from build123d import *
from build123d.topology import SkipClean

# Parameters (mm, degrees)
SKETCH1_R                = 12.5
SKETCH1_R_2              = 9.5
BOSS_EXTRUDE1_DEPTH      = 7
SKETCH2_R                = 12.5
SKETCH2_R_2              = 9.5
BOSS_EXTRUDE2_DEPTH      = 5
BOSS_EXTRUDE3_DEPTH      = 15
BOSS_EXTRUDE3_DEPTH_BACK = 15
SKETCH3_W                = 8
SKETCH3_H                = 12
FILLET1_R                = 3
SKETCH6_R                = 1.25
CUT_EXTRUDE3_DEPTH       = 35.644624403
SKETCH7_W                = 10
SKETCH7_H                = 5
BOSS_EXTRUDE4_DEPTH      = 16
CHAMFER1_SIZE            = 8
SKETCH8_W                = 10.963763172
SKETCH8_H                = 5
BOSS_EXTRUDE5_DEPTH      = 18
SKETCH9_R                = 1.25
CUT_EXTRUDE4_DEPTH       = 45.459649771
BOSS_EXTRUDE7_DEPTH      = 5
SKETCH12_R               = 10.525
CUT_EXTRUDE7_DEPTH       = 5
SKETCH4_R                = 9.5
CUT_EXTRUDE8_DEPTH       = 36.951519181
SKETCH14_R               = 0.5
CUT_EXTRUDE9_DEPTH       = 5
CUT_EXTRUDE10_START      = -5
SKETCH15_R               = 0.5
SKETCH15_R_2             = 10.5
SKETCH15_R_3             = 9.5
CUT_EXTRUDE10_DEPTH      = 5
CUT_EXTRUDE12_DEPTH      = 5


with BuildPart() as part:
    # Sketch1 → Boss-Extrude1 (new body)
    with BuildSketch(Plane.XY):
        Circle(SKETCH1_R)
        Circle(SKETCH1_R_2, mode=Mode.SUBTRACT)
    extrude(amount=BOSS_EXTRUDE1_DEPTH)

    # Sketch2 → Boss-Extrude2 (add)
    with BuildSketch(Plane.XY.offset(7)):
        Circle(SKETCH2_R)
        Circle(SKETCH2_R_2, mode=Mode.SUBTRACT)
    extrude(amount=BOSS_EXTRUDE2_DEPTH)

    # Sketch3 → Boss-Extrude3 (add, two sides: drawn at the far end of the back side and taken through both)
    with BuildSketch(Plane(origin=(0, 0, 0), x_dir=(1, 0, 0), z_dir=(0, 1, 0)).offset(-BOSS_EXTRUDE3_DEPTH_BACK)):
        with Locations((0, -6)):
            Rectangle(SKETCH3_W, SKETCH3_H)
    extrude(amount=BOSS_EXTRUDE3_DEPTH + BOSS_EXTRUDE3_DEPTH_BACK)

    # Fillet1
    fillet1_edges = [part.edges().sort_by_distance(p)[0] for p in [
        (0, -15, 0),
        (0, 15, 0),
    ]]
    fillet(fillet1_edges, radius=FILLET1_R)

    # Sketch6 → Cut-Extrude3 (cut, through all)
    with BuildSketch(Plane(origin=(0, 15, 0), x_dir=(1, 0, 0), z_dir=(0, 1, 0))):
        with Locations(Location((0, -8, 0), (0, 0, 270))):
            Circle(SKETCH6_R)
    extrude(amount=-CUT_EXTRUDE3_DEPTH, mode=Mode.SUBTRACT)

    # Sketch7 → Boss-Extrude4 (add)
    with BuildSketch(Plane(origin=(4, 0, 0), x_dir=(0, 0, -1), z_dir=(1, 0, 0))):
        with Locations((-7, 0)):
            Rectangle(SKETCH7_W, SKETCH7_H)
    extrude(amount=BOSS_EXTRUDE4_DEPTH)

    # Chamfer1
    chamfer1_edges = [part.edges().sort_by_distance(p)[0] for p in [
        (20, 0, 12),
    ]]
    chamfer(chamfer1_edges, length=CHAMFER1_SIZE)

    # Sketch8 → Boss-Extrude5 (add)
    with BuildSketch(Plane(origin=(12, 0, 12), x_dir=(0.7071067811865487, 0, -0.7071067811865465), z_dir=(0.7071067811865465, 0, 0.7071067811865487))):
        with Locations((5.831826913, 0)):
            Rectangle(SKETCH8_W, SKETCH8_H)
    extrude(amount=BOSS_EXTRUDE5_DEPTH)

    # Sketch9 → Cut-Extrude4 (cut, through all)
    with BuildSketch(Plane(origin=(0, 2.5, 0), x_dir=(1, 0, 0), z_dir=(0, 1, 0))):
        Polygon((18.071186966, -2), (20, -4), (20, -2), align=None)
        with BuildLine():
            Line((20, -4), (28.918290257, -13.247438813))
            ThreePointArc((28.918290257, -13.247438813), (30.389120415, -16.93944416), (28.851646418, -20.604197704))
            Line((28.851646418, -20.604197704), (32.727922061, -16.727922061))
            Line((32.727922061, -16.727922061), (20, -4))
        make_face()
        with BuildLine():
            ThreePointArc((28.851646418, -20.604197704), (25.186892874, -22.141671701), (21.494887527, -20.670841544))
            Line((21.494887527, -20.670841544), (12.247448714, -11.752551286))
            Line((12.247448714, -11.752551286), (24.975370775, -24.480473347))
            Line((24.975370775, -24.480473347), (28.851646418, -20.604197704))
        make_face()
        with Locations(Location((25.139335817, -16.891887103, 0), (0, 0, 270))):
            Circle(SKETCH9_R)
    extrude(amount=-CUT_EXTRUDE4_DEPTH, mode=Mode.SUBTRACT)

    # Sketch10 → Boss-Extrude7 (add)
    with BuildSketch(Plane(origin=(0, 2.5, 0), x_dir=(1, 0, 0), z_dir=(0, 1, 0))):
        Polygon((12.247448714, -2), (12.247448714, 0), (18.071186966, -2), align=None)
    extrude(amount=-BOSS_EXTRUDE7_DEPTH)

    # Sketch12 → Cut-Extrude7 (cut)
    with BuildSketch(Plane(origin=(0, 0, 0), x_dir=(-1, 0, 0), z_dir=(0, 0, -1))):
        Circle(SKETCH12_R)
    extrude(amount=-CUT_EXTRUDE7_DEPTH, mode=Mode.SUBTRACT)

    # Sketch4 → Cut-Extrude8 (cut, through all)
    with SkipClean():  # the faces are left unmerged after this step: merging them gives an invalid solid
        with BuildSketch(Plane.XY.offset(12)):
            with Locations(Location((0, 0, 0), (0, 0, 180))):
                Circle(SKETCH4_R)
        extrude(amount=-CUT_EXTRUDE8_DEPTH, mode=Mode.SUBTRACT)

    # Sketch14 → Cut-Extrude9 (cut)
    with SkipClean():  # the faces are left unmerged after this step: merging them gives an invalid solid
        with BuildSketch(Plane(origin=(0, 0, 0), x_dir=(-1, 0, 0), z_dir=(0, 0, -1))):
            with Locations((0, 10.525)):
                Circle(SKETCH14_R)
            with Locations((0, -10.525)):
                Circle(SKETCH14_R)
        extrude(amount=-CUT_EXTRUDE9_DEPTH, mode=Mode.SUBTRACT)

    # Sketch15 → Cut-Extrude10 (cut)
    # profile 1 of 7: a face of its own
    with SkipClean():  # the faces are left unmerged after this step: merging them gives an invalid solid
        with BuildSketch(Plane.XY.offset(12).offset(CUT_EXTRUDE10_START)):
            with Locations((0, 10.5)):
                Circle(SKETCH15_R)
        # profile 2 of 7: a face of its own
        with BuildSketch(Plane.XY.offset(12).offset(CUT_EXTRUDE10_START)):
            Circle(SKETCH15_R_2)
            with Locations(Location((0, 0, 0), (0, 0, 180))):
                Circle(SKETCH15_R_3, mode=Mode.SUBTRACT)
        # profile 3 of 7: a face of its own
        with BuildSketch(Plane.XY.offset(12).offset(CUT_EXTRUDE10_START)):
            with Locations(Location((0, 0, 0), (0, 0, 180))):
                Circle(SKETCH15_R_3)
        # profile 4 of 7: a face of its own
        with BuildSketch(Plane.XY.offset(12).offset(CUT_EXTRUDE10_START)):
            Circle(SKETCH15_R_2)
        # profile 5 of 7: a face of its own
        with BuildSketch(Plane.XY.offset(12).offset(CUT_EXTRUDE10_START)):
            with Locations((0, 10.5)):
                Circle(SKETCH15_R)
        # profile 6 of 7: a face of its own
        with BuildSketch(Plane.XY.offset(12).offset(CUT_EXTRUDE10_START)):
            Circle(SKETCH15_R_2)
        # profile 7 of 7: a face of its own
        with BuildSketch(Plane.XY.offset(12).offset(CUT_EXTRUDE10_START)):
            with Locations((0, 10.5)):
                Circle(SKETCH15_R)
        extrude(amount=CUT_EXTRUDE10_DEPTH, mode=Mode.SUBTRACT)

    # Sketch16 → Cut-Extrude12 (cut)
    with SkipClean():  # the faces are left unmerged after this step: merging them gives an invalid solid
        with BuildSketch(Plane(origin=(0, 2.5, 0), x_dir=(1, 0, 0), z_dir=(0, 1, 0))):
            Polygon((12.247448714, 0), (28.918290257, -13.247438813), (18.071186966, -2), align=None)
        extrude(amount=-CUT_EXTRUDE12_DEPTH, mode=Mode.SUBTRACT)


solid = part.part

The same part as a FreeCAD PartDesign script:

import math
import FreeCAD as App
import Part
import Sketcher

V = App.Vector
Q = App.Units.Quantity


def edges_at(feature, points):
    """Names of the edges that pass closest to the given points."""
    edges = feature.Shape.Edges
    near = lambda p: min(range(len(edges)), key=lambda i: edges[i].distToShape(Part.Vertex(*p))[0])
    return sorted({f"Edge{near(p) + 1}" for p in points})


def add_polygon(sketch, points):
    """Adds a closed chain of lines whose ends are joined by coincident constraints."""
    first, n = sketch.GeometryCount, len(points)
    for a, b in zip(points, points[1:] + points[:1]):
        sketch.addGeometry(Part.LineSegment(App.Vector(*a, 0), App.Vector(*b, 0)), False)
    for i in range(n):
        sketch.addConstraint(Sketcher.Constraint("Coincident", first + i, 2, first + (i + 1) % n, 1))

doc = App.newDocument("Part")
body = doc.addObject("PartDesign::Body", "Body")
body.AllowCompound = True

# Sketch on XY plane
sketch1 = doc.addObject("Sketcher::SketchObject", "Sketch")
body.addObject(sketch1)
sketch1.AttachmentSupport = (doc.XY_Plane, [""])
sketch1.MapMode = "FlatFace"
sketch1.addGeometry([
    Part.Circle(V(0, 0, 0), V(0, 0, 1), 12),
    Part.Circle(V(0, 0, 0), V(0, 0, 1), 10),
], False)
sketch1.addConstraint([
    Sketcher.Constraint("Coincident", 0, 3, -1, 1),
    Sketcher.Constraint("Coincident", 1, 3, -1, 1),
    Sketcher.Constraint("Diameter", 0, 25.0),
    Sketcher.Constraint("Diameter", 1, 19.0),
])
pad1 = doc.addObject("PartDesign::Pad", "Pad")
body.addObject(pad1)
pad1.Profile = sketch1
pad1.Length = 7

# Sketch on XY plane
sketch2 = doc.addObject("Sketcher::SketchObject", "Sketch001")
body.addObject(sketch2)
sketch2.AttachmentSupport = (doc.XY_Plane, [""])
sketch2.MapMode = "FlatFace"
sketch2.AttachmentOffset = App.Placement(V(0, 0, 7), App.Rotation())
sketch2.addGeometry([
    Part.Circle(V(0, 0, 0), V(0, 0, 1), 12),
    Part.Circle(V(0, 0, 0), V(0, 0, 1), 10),
], False)
sketch2.addConstraint([
    Sketcher.Constraint("Coincident", 0, 3, -1, 1),
    Sketcher.Constraint("Coincident", 1, 3, -1, 1),
    Sketcher.Constraint("Diameter", 0, 25.0),
    Sketcher.Constraint("Diameter", 1, 19.0),
])
pad2 = doc.addObject("PartDesign::Pad", "Pad001")
body.addObject(pad2)
pad2.Profile = sketch2
pad2.Length = 5

# Sketch on XZ plane
sketch3 = doc.addObject("Sketcher::SketchObject", "Sketch002")
body.addObject(sketch3)
sketch3.AttachmentSupport = (doc.XZ_Plane, [""])
sketch3.MapMode = "FlatFace"
add_polygon(sketch3, [(-4, 0), (-4, 12), (4, 12), (4, 0)])  # lines 0-3
sketch3.addConstraint([
    Sketcher.Constraint("Vertical", 0),
    Sketcher.Constraint("Horizontal", 1),
    Sketcher.Constraint("Vertical", 2),
    Sketcher.Constraint("Horizontal", 3),
    Sketcher.Constraint("Symmetric", 2, 2, 3, 2, -1, 1),
    Sketcher.Constraint("DistanceX", 1, 1, 1, 2, 8.0),
    Sketcher.Constraint("DistanceY", 0, 1, 0, 2, 12.0),
])
pad3 = doc.addObject("PartDesign::Pad", "Pad002")
body.addObject(pad3)
pad3.Profile = sketch3
pad3.Type = "TwoLengths"
pad3.Length = 15
pad3.Length2 = 15
pad3.Reversed = True
doc.recompute()

fillet = doc.addObject("PartDesign::Fillet", "Fillet")
body.addObject(fillet)
fillet.Base = (pad3, edges_at(pad3, [(0, -15, 0), (0, 15, 0)]))
fillet.Radius = 3

# Sketch on XZ plane
sketch4 = doc.addObject("Sketcher::SketchObject", "Sketch003")
body.addObject(sketch4)
sketch4.AttachmentSupport = (doc.XZ_Plane, [""])
sketch4.MapMode = "FlatFace"
sketch4.AttachmentOffset = App.Placement(V(0, 0, -15), App.Rotation())
sketch4.addGeometry(Part.Circle(V(0, 8, 0), V(0, 0, 1), 1.2), False)
sketch4.addConstraint([
    Sketcher.Constraint("PointOnObject", 0, 3, -2),
    Sketcher.Constraint("Diameter", 0, 2.5),
    Sketcher.Constraint("DistanceY", -1, 1, 0, 3, 8.0),
])
pocket1 = doc.addObject("PartDesign::Pocket", "Pocket")
body.addObject(pocket1)
pocket1.Profile = sketch4
pocket1.Type = "ThroughAll"
pocket1.Reversed = True

# Sketch on YZ plane
sketch5 = doc.addObject("Sketcher::SketchObject", "Sketch004")
body.addObject(sketch5)
sketch5.AttachmentSupport = (doc.YZ_Plane, [""])
sketch5.MapMode = "FlatFace"
sketch5.AttachmentOffset = App.Placement(V(0, 0, 4), App.Rotation())
add_polygon(sketch5, [(2, 12), (-2, 12), (-2, 2), (2, 2)])  # lines 0-3
sketch5.addConstraint([
    Sketcher.Constraint("Horizontal", 0),
    Sketcher.Constraint("Vertical", 1),
    Sketcher.Constraint("Horizontal", 2),
    Sketcher.Constraint("Vertical", 3),
    Sketcher.Constraint("DistanceX", 0, 2, 0, 1, 5.0),
    Sketcher.Constraint("DistanceY", 1, 2, 1, 1, 10.0),
    Sketcher.Constraint("DistanceY", -1, 1, 0, 2, 12.0),
    Sketcher.Constraint("DistanceX", 0, 2, -1, 1, 2.5),
])
pad4 = doc.addObject("PartDesign::Pad", "Pad003")
body.addObject(pad4)
pad4.Profile = sketch5
pad4.Length = 16
doc.recompute()

chamfer = doc.addObject("PartDesign::Chamfer", "Chamfer")
body.addObject(chamfer)
chamfer.Base = (pad4, edges_at(pad4, [(20, 0, 12)]))
chamfer.Size = 8

# Sketch on an angled plane
sketch6 = doc.addObject("Sketcher::SketchObject", "Sketch005")
body.addObject(sketch6)
sketch6.Placement = App.Placement(V(12, 0, 12), App.Rotation(V(0.707106781, 0, -0.707106781), V(0, 0.999999999, 0), V(0.707106781, 0, 0.707106781), "ZXY"))
add_polygon(sketch6, [(0.3, 2.5), (0.3, -2.5), (11.3, -2.5), (11.3, 2.5)])  # lines 0-3
sketch6.addConstraint([
    Sketcher.Constraint("Vertical", 0),
    Sketcher.Constraint("Horizontal", 1),
    Sketcher.Constraint("Vertical", 2),
    Sketcher.Constraint("Horizontal", 3),
    Sketcher.Constraint("DistanceY", 0, 2, 0, 1, 5.0),
    Sketcher.Constraint("DistanceY", 0, 2, -1, 1, 2.5),
    Sketcher.Constraint("DistanceX", 1, 1, 1, 2, 10.963763),
    Sketcher.Constraint("DistanceX", -1, 1, 1, 2, 11.313708),
])
pad5 = doc.addObject("PartDesign::Pad", "Pad004")
body.addObject(pad5)
pad5.Profile = sketch6
pad5.Length = 18

# Sketch on XZ plane
sketch7 = doc.addObject("Sketcher::SketchObject", "Sketch006")
body.addObject(sketch7)
sketch7.AttachmentSupport = (doc.XZ_Plane, [""])
sketch7.MapMode = "FlatFace"
sketch7.AttachmentOffset = App.Placement(V(0, 0, -2.5), App.Rotation())
add_polygon(sketch7, [(18.1, 2), (20, 4), (20, 2)])  # lines 0-2
sketch7.addGeometry(Part.LineSegment(V(20, 4, 0), V(28.9, 13.2, 0)), False)  # 3
sketch7.addGeometry(Part.ArcOfCircle(Part.Circle(V(25.1, 16.9, 0), V(0, 0, 1), 5.2), math.radians(-44), math.radians(45)), False)  # 4
sketch7.addGeometry(Part.LineSegment(V(28.9, 20.6, 0), V(32.7, 16.7, 0)), False)  # 5
sketch7.addGeometry(Part.LineSegment(V(32.7, 16.7, 0), V(20, 4, 0)), False)  # 6
sketch7.addGeometry(Part.ArcOfCircle(Part.Circle(V(25.1, 16.9, 0), V(0, 0, 1), 5.3), math.radians(45), math.radians(134)), False)  # 7
sketch7.addGeometry(Part.LineSegment(V(21.5, 20.7, 0), V(12.2, 11.8, 0)), False)  # 8
sketch7.addGeometry(Part.LineSegment(V(12.2, 11.8, 0), V(25, 24.5, 0)), False)  # 9
sketch7.addGeometry(Part.LineSegment(V(25, 24.5, 0), V(28.9, 20.6, 0)), False)  # 10
sketch7.addGeometry(Part.Circle(V(25.1, 16.9, 0), V(0, 0, 1), 1.2), False)  # 11
sketch7.addConstraint([
    Sketcher.Constraint("Tangent", 3, 2, 4, 1),
    Sketcher.Constraint("Tangent", 4, 2, 5, 1),
    Sketcher.Constraint("Coincident", 5, 2, 6, 1),
    Sketcher.Constraint("Coincident", 6, 2, 3, 1),
    Sketcher.Constraint("Tangent", 7, 2, 8, 1),
    Sketcher.Constraint("Coincident", 8, 2, 9, 1),
    Sketcher.Constraint("Coincident", 9, 2, 10, 1),
    Sketcher.Constraint("Tangent", 10, 2, 7, 1),
    Sketcher.Constraint("Vertical", 1),
    Sketcher.Constraint("Horizontal", 2),
    Sketcher.Constraint("Coincident", 7, 3, 4, 3),
    Sketcher.Constraint("Coincident", 11, 3, 4, 3),
    Sketcher.Constraint("Coincident", 6, 2, 0, 2),
    Sketcher.Constraint("Coincident", 10, 2, 4, 2),
    Sketcher.Constraint("Parallel", 0, 3),
    Sketcher.Constraint("Perpendicular", 5, 6),
    Sketcher.Constraint("Parallel", 6, 9),
    Sketcher.Constraint("Equal", 3, 8),
    Sketcher.Constraint("Equal", 6, 9),
    Sketcher.Constraint("Diameter", 11, 2.5),
    Sketcher.Constraint("DistanceY", 1, 2, 1, 1, 2.0),
    Sketcher.Constraint("Angle", 5, Q("-45 deg")),
    Sketcher.Constraint("Radius", 4, 5.25),
    Sketcher.Constraint("Distance", 6, 18.0),
    Sketcher.Constraint("DistanceX", -1, 1, 0, 2, 20.0),
    Sketcher.Constraint("DistanceY", -1, 1, 0, 2, 4.0),
    Sketcher.Constraint("Distance", 3, 12.847219),
])
pocket2 = doc.addObject("PartDesign::Pocket", "Pocket001")
body.addObject(pocket2)
pocket2.Profile = sketch7
pocket2.Type = "ThroughAll"
pocket2.Reversed = True

# Sketch on XZ plane
sketch8 = doc.addObject("Sketcher::SketchObject", "Sketch007")
body.addObject(sketch8)
sketch8.AttachmentSupport = (doc.XZ_Plane, [""])
sketch8.MapMode = "FlatFace"
sketch8.AttachmentOffset = App.Placement(V(0, 0, -2.5), App.Rotation())
add_polygon(sketch8, [(12.2, 0), (12.2, 2), (18.1, 2)])  # lines 0-2
sketch8.addConstraint([
    Sketcher.Constraint("Vertical", 0),
    Sketcher.Constraint("Horizontal", 1),
    Sketcher.Constraint("PointOnObject", 2, 2, -1),
    Sketcher.Constraint("DistanceY", 0, 1, 0, 2, 2.0),
    Sketcher.Constraint("DistanceX", 1, 1, 1, 2, 5.823738),
    Sketcher.Constraint("DistanceX", -1, 1, 0, 2, 12.247449),
])
pad6 = doc.addObject("PartDesign::Pad", "Pad005")
body.addObject(pad6)
pad6.Profile = sketch8
pad6.Length = 5

# Sketch on XY plane
sketch9 = doc.addObject("Sketcher::SketchObject", "Sketch008")
body.addObject(sketch9)
sketch9.AttachmentSupport = (doc.XY_Plane, [""])
sketch9.MapMode = "FlatFace"
sketch9.addGeometry(Part.Circle(V(0, 0, 0), V(0, 0, 1), 11), False)
sketch9.addConstraint([
    Sketcher.Constraint("Coincident", 0, 3, -1, 1),
    Sketcher.Constraint("Diameter", 0, 21.05),
])
pocket3 = doc.addObject("PartDesign::Pocket", "Pocket002")
body.addObject(pocket3)
pocket3.Profile = sketch9
pocket3.Length = 5
pocket3.Reversed = True

# Sketch on XY plane
sketch10 = doc.addObject("Sketcher::SketchObject", "Sketch009")
body.addObject(sketch10)
sketch10.AttachmentSupport = (doc.XY_Plane, [""])
sketch10.MapMode = "FlatFace"
sketch10.AttachmentOffset = App.Placement(V(0, 0, 12), App.Rotation())
sketch10.addGeometry(Part.Circle(V(0, 0, 0), V(0, 0, 1), 10), False)
sketch10.addConstraint([
    Sketcher.Constraint("Coincident", 0, 3, -1, 1),
    Sketcher.Constraint("Diameter", 0, 19.0),
])
pocket4 = doc.addObject("PartDesign::Pocket", "Pocket003")
body.addObject(pocket4)
pocket4.Profile = sketch10
pocket4.Type = "ThroughAll"

# Sketch on XY plane
sketch11 = doc.addObject("Sketcher::SketchObject", "Sketch010")
body.addObject(sketch11)
sketch11.AttachmentSupport = (doc.XY_Plane, [""])
sketch11.MapMode = "FlatFace"
sketch11.addGeometry([
    Part.Circle(V(0, 10.5, 0), V(0, 0, 1), 0.5),
    Part.Circle(V(0, -10.5, 0), V(0, 0, 1), 0.5),
], False)
sketch11.addConstraint([
    Sketcher.Constraint("Equal", 0, 1),
    Sketcher.Constraint("Symmetric", 0, 3, 1, 3, -1, 1),
    Sketcher.Constraint("PointOnObject", 0, 3, -2),
    Sketcher.Constraint("Diameter", 0, 1.0),
    Sketcher.Constraint("DistanceY", 1, 3, 0, 3, 21.05),
])
pocket5 = doc.addObject("PartDesign::Pocket", "Pocket004")
body.addObject(pocket5)
pocket5.Profile = sketch11
pocket5.Length = 5
pocket5.Reversed = True

# Sketch on XY plane
sketch12 = doc.addObject("Sketcher::SketchObject", "Sketch011")
body.addObject(sketch12)
sketch12.AttachmentSupport = (doc.XY_Plane, [""])
sketch12.MapMode = "FlatFace"
sketch12.AttachmentOffset = App.Placement(V(0, 0, 7), App.Rotation())
sketch12.addGeometry([
    Part.ArcOfCircle(Part.Circle(V(0, 10.5, 0), V(0, 0, 1), 0.5), math.radians(-1), math.radians(181)),
    Part.ArcOfCircle(Part.Circle(V(0, 0, 0), V(0, 0, 1), 10.5), math.radians(93), math.radians(447)),
], False)
sketch12.addConstraint([
    Sketcher.Constraint("Coincident", 0, 1, 1, 2),
    Sketcher.Constraint("Coincident", 1, 1, 0, 2),
    Sketcher.Constraint("Coincident", 1, 3, -1, 1),
    Sketcher.Constraint("PointOnObject", 0, 3, -2),
    Sketcher.Constraint("Radius", 0, 0.5),
    Sketcher.Constraint("Radius", 1, 10.5),
    Sketcher.Constraint("DistanceY", -1, 1, 0, 3, 10.5),
])
pocket6 = doc.addObject("PartDesign::Pocket", "Pocket005")
body.addObject(pocket6)
pocket6.Profile = sketch12
pocket6.Length = 5
pocket6.Reversed = True

# Sketch on XZ plane
sketch13 = doc.addObject("Sketcher::SketchObject", "Sketch012")
body.addObject(sketch13)
sketch13.AttachmentSupport = (doc.XZ_Plane, [""])
sketch13.MapMode = "FlatFace"
sketch13.AttachmentOffset = App.Placement(V(0, 0, -2.5), App.Rotation())
add_polygon(sketch13, [(12, 0), (29, 13), (18, 2)])  # lines 0-2
sketch13.addConstraint([
    Sketcher.Constraint("PointOnObject", 2, 2, -1),
    Sketcher.Constraint("DistanceY", -1, 1, 1, 2, 2.0),
    Sketcher.Constraint("Distance", 2, 6.157591),
    Sketcher.Constraint("DistanceX", -1, 1, 0, 2, 28.91829),
    Sketcher.Constraint("DistanceY", -1, 1, 0, 2, 13.247439),
    Sketcher.Constraint("DistanceX", -1, 1, 2, 2, 12.247449),
])
pocket7 = doc.addObject("PartDesign::Pocket", "Pocket006")
body.addObject(pocket7)
pocket7.Profile = sketch13
pocket7.Length = 5
pocket7.Reversed = True

doc.recompute()
